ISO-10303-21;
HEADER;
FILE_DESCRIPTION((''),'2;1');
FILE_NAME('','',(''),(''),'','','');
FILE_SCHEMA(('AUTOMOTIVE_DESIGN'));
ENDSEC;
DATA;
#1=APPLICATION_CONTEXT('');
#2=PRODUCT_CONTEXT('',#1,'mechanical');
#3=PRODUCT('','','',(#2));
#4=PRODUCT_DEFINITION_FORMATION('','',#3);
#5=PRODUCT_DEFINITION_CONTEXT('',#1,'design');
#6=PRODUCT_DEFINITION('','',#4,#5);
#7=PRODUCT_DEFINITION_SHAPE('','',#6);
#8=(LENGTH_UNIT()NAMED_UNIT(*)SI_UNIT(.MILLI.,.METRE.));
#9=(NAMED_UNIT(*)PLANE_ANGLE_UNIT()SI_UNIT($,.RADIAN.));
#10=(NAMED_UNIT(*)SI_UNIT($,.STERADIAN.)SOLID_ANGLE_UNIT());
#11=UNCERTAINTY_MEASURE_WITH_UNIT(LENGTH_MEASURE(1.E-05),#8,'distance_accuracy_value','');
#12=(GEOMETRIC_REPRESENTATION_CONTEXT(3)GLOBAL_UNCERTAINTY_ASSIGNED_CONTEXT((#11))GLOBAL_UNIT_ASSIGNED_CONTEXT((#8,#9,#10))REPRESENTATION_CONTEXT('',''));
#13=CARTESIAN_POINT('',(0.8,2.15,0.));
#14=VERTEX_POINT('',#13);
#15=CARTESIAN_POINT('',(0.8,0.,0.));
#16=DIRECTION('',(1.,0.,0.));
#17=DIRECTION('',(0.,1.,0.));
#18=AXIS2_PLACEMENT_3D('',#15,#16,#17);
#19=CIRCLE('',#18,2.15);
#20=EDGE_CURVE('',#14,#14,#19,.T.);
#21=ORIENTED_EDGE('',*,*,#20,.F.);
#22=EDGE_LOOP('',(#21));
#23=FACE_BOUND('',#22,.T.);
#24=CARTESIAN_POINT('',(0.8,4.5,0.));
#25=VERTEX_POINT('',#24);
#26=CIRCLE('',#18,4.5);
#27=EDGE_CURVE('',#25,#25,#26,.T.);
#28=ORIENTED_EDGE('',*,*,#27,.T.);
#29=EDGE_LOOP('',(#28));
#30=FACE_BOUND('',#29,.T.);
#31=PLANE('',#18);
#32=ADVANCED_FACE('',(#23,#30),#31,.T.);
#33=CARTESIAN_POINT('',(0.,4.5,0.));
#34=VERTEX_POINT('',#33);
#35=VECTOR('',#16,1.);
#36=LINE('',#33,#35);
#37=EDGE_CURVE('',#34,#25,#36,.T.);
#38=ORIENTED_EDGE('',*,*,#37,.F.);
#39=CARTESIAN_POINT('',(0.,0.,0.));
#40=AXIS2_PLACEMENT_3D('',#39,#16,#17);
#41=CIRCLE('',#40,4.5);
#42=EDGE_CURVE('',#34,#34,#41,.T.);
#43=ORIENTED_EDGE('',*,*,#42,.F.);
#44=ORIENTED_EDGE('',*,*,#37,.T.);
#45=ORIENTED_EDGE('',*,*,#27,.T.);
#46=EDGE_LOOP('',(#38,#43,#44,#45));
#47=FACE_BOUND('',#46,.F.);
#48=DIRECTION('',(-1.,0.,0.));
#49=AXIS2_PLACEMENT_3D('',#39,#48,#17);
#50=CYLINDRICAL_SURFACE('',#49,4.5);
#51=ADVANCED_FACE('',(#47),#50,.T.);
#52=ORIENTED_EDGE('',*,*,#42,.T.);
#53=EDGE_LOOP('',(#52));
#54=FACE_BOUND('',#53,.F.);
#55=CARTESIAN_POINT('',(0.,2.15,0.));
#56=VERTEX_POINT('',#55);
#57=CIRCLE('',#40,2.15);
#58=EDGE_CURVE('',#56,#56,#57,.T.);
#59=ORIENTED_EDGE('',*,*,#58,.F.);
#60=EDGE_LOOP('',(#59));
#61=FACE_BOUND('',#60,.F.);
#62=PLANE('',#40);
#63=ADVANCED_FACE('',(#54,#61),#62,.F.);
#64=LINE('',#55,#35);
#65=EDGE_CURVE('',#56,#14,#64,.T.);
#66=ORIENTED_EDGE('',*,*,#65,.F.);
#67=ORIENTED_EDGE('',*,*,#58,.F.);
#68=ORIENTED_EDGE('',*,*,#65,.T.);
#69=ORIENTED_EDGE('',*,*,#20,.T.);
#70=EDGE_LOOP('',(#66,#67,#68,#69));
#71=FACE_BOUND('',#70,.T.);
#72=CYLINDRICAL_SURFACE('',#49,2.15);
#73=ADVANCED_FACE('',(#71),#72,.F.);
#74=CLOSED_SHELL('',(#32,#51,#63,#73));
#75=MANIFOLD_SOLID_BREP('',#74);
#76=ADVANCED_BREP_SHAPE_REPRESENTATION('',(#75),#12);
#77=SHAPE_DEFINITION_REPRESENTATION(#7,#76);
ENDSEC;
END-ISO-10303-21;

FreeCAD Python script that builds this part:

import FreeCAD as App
import Part
import Sketcher

V = App.Vector

doc = App.newDocument("Part")
body = doc.addObject("PartDesign::Body", "Body")

# Sketch on YZ plane
sketch1 = body.newObject("Sketcher::SketchObject", "Sketch")
sketch1.AttachmentSupport = (doc.getObject("YZ_Plane"), [""])
sketch1.MapMode = "FlatFace"
sketch1.addGeometry(Part.Circle(V(0, 0, 0), V(0, 0, 1), 4.5), False)
sketch1.addGeometry(Part.Circle(V(0, 0, 0), V(0, 0, 1), 2.1), False)
sketch1.addConstraint(Sketcher.Constraint("Coincident", 0, 3, -1, 1))
sketch1.addConstraint(Sketcher.Constraint("Coincident", 1, 3, -1, 1))
sketch1.addConstraint(Sketcher.Constraint("Diameter", 0, 9.0))
sketch1.addConstraint(Sketcher.Constraint("Diameter", 1, 4.3))
pad1 = body.newObject("PartDesign::Pad", "Pad")
pad1.Profile = sketch1
pad1.Length = 0.8

doc.recompute()
